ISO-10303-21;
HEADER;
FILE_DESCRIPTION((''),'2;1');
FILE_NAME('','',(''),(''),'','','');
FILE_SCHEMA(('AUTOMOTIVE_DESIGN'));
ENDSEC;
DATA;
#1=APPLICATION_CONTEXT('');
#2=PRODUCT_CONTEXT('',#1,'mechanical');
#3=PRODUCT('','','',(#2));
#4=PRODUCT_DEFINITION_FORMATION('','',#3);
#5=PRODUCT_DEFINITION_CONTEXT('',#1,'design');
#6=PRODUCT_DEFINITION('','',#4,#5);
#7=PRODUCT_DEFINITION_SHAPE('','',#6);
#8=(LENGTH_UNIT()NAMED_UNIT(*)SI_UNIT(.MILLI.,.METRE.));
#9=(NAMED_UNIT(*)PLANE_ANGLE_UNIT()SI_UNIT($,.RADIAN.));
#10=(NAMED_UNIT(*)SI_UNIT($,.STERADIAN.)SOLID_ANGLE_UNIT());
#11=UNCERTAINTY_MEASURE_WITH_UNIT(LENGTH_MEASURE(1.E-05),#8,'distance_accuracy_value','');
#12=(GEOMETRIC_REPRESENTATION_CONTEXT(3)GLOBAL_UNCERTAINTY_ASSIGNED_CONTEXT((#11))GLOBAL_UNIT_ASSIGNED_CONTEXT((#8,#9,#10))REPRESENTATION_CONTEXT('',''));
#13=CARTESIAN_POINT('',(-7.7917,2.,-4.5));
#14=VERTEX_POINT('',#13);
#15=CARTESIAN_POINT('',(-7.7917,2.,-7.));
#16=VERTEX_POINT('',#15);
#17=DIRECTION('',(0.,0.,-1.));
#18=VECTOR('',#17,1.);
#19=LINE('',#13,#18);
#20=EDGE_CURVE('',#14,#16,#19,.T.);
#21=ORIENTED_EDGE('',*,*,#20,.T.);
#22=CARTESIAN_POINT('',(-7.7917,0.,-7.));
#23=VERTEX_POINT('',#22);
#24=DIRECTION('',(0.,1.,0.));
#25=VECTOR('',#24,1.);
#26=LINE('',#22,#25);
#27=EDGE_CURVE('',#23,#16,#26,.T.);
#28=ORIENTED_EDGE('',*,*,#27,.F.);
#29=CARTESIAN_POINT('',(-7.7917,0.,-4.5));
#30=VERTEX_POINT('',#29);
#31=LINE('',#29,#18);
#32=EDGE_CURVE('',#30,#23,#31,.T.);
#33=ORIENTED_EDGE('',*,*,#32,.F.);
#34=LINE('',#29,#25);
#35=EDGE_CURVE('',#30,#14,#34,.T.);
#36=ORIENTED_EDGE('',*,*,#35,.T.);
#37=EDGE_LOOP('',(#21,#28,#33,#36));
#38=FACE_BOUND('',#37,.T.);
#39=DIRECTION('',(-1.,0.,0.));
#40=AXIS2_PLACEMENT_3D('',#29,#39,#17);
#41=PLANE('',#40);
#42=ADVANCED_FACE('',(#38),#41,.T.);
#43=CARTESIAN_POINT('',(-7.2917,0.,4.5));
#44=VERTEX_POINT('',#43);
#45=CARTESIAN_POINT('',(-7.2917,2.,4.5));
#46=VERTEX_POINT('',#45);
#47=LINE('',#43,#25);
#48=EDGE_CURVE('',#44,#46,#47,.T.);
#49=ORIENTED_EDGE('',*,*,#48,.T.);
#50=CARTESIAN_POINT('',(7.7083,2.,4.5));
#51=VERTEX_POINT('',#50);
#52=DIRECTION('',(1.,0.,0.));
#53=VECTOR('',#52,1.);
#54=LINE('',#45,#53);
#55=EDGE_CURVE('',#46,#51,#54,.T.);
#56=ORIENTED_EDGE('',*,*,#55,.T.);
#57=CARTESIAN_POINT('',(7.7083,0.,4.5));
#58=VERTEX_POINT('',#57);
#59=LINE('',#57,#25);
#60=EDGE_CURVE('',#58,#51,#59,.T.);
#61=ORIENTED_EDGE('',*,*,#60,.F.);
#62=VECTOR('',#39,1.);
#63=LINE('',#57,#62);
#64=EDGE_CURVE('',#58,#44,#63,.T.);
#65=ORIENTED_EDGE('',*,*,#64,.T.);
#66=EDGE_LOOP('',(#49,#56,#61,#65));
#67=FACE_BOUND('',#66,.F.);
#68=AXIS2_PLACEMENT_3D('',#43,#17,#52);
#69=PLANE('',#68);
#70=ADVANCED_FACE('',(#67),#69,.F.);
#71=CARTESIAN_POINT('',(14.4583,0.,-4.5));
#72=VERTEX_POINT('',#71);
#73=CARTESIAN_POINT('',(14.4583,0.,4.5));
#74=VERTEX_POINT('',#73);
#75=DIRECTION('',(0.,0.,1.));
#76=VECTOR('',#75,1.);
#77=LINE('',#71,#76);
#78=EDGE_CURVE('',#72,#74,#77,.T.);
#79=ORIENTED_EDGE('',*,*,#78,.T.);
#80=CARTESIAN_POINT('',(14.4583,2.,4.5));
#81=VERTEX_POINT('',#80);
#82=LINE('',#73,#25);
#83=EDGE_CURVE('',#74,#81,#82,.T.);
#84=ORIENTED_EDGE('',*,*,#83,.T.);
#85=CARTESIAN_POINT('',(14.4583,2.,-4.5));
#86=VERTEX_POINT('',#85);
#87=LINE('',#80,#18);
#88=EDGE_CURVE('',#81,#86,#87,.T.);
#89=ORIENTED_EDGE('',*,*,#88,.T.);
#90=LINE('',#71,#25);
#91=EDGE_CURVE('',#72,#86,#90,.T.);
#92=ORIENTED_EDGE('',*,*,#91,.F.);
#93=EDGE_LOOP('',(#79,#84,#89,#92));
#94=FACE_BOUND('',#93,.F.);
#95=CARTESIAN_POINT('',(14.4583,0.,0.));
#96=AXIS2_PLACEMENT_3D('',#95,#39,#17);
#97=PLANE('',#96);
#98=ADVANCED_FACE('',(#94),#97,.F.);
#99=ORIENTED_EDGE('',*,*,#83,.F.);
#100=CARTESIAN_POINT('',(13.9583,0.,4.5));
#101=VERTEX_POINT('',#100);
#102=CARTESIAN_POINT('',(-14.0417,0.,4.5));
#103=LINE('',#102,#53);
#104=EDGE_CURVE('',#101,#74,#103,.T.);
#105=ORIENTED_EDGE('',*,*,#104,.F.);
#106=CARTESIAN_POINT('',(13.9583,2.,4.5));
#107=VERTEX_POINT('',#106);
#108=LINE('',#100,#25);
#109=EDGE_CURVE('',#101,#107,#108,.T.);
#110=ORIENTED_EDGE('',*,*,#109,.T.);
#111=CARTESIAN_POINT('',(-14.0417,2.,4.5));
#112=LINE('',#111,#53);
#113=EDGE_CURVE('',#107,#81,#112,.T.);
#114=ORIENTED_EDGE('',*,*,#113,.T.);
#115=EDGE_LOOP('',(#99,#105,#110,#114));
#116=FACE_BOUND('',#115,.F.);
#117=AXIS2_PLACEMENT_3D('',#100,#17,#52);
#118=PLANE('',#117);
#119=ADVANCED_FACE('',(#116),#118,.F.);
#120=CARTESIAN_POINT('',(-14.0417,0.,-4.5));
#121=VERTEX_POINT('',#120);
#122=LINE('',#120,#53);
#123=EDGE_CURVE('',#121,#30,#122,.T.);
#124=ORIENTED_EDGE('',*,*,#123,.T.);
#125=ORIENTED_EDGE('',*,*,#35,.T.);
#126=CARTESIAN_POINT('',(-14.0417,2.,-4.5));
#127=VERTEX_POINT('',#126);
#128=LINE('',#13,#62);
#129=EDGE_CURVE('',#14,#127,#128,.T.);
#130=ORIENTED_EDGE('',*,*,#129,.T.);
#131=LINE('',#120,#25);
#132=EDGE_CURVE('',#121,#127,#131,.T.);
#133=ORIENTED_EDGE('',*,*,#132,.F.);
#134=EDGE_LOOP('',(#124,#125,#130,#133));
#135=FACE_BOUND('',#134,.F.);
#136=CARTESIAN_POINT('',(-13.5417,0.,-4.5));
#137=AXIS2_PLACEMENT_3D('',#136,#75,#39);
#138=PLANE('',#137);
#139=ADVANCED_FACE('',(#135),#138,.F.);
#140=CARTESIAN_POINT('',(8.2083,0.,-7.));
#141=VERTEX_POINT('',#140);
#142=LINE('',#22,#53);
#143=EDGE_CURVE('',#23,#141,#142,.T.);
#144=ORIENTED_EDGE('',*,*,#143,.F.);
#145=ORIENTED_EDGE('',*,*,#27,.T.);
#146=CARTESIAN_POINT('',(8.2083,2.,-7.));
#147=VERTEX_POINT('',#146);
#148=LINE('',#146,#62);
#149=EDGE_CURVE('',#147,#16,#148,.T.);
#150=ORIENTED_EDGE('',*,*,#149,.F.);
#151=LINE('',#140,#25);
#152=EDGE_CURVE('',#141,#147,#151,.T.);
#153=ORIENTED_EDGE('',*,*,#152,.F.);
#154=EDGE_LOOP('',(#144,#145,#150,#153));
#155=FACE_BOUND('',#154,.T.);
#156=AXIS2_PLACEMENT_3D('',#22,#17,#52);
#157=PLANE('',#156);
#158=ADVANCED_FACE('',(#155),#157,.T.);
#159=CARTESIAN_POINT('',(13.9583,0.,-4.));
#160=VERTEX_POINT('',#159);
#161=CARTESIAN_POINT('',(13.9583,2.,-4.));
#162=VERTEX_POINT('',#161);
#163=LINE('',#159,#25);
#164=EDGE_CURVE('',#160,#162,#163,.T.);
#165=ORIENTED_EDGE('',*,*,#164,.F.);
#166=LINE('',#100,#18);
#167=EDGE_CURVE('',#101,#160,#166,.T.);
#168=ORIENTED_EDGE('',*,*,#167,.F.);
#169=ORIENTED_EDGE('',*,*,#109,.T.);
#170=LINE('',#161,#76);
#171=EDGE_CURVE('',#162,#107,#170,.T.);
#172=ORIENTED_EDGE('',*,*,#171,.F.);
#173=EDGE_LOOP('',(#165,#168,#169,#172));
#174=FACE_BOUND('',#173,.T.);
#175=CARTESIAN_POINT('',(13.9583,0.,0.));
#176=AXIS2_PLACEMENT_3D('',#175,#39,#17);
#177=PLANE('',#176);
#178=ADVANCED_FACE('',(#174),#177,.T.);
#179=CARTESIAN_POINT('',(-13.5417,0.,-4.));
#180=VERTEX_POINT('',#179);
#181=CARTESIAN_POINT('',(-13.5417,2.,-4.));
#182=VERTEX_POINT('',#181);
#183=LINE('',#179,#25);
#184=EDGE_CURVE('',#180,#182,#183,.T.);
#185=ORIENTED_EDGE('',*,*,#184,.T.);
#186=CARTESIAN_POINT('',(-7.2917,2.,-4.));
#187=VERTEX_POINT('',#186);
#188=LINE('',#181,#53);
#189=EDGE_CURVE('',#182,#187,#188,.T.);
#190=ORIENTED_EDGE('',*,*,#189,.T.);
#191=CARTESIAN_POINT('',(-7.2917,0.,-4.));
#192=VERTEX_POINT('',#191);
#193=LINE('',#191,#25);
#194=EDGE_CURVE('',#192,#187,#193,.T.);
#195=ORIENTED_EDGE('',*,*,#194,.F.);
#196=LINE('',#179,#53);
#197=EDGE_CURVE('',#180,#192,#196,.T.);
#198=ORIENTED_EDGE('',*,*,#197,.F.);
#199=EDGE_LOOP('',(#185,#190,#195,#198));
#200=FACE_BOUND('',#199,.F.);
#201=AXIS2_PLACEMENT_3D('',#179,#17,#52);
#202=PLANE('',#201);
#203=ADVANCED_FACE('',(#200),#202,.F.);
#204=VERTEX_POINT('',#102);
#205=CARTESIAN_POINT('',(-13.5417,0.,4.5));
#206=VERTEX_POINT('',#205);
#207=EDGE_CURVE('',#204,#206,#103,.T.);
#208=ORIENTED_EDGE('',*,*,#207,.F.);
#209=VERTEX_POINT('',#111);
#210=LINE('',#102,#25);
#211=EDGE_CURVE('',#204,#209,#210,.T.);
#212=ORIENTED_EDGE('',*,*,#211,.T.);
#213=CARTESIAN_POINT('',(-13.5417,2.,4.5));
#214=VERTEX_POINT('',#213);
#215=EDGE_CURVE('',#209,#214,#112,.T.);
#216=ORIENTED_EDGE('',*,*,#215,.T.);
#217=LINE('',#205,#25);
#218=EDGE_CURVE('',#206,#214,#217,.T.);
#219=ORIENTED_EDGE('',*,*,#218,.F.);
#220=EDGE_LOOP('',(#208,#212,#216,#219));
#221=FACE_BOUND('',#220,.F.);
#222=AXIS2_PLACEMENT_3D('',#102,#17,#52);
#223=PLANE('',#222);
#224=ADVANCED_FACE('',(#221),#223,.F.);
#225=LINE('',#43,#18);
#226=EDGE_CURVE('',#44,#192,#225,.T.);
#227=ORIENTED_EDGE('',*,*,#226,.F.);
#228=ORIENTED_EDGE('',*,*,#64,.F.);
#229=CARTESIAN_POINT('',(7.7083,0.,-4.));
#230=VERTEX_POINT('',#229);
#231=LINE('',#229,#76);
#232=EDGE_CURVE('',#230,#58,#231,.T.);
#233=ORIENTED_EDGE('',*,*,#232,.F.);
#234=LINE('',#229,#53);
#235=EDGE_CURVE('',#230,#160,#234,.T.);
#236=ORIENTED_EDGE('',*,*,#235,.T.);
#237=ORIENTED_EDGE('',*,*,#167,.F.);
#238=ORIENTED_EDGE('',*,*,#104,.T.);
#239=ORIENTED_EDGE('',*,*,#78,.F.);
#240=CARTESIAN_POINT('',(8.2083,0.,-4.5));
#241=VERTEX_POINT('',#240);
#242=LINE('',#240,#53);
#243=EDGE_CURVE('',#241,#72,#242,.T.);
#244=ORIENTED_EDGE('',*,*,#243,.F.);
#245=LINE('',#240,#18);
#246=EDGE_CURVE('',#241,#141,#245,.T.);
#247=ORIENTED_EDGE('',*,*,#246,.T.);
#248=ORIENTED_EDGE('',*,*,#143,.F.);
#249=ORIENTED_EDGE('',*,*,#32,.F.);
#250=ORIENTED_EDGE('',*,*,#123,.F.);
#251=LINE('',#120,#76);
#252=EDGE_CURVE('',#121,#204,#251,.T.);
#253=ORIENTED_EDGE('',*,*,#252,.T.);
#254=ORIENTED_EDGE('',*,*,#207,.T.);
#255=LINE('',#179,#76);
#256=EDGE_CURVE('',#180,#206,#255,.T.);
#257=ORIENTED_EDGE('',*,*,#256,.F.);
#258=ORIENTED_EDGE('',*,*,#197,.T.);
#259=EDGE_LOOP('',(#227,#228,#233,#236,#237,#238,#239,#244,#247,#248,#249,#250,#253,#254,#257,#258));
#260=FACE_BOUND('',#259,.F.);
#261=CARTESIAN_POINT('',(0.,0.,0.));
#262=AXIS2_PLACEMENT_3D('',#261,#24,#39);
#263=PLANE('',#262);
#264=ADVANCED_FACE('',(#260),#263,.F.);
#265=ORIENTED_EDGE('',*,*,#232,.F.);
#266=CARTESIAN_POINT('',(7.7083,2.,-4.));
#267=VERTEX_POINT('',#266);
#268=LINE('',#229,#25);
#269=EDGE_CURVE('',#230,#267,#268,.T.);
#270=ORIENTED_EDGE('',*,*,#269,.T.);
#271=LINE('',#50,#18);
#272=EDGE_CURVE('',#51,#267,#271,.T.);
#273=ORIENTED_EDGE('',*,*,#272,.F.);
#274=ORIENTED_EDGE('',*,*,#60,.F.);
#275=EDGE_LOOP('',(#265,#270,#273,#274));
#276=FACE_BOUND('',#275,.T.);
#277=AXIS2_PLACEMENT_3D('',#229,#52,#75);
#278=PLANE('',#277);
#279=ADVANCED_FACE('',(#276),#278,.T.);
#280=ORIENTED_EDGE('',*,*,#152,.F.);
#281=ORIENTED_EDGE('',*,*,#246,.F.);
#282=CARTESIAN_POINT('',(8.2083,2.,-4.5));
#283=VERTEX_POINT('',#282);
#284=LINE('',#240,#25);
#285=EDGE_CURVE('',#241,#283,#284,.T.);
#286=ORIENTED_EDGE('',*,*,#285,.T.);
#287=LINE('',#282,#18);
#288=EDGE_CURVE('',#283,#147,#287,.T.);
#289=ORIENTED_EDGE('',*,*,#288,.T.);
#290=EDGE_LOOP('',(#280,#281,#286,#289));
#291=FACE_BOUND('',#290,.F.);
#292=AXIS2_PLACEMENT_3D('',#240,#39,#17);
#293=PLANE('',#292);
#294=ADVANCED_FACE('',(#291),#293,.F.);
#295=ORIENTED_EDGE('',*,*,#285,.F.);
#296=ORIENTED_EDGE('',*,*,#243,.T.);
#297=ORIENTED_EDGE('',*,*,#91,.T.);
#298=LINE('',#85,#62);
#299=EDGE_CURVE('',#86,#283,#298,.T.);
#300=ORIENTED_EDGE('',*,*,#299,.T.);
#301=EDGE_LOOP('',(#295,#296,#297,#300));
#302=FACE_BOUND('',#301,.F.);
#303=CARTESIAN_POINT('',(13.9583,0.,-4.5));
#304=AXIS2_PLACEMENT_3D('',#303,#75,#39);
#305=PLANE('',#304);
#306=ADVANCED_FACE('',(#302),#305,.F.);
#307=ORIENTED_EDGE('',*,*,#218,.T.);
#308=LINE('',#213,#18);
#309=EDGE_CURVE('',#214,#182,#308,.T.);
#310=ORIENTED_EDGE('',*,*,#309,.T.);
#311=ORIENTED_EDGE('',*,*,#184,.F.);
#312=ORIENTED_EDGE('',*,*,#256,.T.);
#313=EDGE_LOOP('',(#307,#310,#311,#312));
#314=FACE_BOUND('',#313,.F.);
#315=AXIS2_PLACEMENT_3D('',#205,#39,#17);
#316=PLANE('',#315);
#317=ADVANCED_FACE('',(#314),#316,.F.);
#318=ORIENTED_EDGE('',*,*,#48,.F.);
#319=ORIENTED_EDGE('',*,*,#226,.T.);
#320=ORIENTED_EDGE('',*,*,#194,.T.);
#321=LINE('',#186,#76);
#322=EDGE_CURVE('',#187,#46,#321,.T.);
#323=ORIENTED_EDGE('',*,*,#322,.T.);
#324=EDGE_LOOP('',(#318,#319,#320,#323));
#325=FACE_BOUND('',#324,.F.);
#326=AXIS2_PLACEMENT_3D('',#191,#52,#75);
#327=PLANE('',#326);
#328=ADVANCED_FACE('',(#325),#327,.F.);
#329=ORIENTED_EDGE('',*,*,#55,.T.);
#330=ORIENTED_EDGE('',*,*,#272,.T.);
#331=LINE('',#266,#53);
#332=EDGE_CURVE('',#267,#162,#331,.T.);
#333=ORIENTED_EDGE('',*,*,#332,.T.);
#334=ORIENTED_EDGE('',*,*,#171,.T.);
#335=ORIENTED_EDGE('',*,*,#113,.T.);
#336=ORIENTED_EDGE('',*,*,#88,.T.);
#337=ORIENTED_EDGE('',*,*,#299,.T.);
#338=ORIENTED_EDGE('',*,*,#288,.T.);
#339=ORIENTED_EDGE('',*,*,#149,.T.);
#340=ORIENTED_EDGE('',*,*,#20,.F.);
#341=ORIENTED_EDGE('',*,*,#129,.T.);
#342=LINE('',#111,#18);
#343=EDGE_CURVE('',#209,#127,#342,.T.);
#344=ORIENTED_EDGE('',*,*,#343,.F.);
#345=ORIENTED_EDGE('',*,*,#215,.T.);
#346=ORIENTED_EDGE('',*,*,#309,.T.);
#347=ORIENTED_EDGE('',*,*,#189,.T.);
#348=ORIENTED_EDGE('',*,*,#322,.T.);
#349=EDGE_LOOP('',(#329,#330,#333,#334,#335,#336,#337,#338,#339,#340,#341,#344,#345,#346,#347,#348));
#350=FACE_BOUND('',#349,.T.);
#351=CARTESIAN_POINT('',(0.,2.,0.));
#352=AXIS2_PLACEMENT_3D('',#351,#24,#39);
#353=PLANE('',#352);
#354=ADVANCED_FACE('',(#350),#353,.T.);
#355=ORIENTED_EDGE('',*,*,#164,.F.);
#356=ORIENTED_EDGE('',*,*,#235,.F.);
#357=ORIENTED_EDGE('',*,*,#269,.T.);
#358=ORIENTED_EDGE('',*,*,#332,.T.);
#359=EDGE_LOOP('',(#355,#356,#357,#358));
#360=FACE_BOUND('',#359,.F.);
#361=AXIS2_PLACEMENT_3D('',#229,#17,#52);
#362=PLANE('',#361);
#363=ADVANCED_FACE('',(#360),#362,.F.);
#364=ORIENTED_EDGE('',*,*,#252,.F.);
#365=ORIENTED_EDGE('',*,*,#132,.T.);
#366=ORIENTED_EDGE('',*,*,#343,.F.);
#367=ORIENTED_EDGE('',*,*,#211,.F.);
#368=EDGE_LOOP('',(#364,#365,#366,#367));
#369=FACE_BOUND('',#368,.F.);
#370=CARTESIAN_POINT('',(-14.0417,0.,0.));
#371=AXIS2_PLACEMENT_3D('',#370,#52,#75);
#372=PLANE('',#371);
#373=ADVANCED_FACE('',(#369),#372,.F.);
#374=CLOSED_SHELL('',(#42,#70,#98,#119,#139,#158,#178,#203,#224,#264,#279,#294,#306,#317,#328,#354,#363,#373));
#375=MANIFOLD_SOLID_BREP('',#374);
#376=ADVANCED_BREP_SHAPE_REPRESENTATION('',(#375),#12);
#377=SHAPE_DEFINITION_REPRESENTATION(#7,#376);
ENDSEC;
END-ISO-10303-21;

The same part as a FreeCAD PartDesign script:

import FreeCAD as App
import Part
import Sketcher


def add_polygon(sketch, points):
    """Adds a closed chain of lines whose ends are joined by coincident constraints."""
    first, n = sketch.GeometryCount, len(points)
    for a, b in zip(points, points[1:] + points[:1]):
        sketch.addGeometry(Part.LineSegment(App.Vector(*a, 0), App.Vector(*b, 0)), False)
    for i in range(n):
        sketch.addConstraint(Sketcher.Constraint("Coincident", first + i, 2, first + (i + 1) % n, 1))

doc = App.newDocument("Part")
body = doc.addObject("PartDesign::Body", "Body")

# Sketch on XZ plane
sketch1 = body.newObject("Sketcher::SketchObject", "Sketch")
sketch1.AttachmentSupport = (doc.getObject("XZ_Plane"), [""])
sketch1.MapMode = "FlatFace"
add_polygon(sketch1, [(-14, 4.5), (-13.5, 4.5), (-13.5, -4), (-7.3, -4), (-7.3, 4.5), (7.7, 4.5), (7.7, -4), (14, -4), (14, 4.5), (14.5, 4.5), (14.5, -4.5), (8.2, -4.5), (8.2, -7), (-7.8, -7), (-7.8, -4.5), (-14, -4.5)])  # lines 0-15
sketch1.addConstraint(Sketcher.Constraint("Horizontal", 0))
sketch1.addConstraint(Sketcher.Constraint("Vertical", 1))
sketch1.addConstraint(Sketcher.Constraint("Horizontal", 2))
sketch1.addConstraint(Sketcher.Constraint("Vertical", 3))
sketch1.addConstraint(Sketcher.Constraint("Horizontal", 4))
sketch1.addConstraint(Sketcher.Constraint("Vertical", 5))
sketch1.addConstraint(Sketcher.Constraint("Horizontal", 6))
sketch1.addConstraint(Sketcher.Constraint("Vertical", 7))
sketch1.addConstraint(Sketcher.Constraint("Horizontal", 8))
sketch1.addConstraint(Sketcher.Constraint("Vertical", 9))
sketch1.addConstraint(Sketcher.Constraint("Horizontal", 10))
sketch1.addConstraint(Sketcher.Constraint("Vertical", 11))
sketch1.addConstraint(Sketcher.Constraint("Horizontal", 12))
sketch1.addConstraint(Sketcher.Constraint("Vertical", 13))
sketch1.addConstraint(Sketcher.Constraint("Horizontal", 14))
sketch1.addConstraint(Sketcher.Constraint("Vertical", 15))
sketch1.addConstraint(Sketcher.Constraint("Horizontal", 0, 2, 3, 2))
sketch1.addConstraint(Sketcher.Constraint("Horizontal", 2, 2, 5, 2))
sketch1.addConstraint(Sketcher.Constraint("Horizontal", 4, 2, 7, 2))
sketch1.addConstraint(Sketcher.Constraint("Horizontal", 10, 2, 13, 2))
sketch1.addConstraint(Sketcher.Constraint("Equal", 2, 6))
sketch1.addConstraint(Sketcher.Constraint("Equal", 0, 8))
sketch1.addConstraint(Sketcher.Constraint("Equal", 6, 10))
sketch1.addConstraint(Sketcher.Constraint("Equal", 10, 14))
sketch1.addConstraint(Sketcher.Constraint("DistanceY", 9, 2, 9, 1, 9.0))
sketch1.addConstraint(Sketcher.Constraint("DistanceX", 0, 1, 0, 2, 0.5))
sketch1.addConstraint(Sketcher.Constraint("DistanceY", 11, 2, 11, 1, 2.5))
sketch1.addConstraint(Sketcher.Constraint("DistanceY", -1, 1, 0, 2, 4.5))
sketch1.addConstraint(Sketcher.Constraint("DistanceY", 9, 2, 6, 2, 0.5))
sketch1.addConstraint(Sketcher.Constraint("DistanceX", 4, 1, 4, 2, 15.0))
sketch1.addConstraint(Sketcher.Constraint("DistanceX", 4, 2, 8, 2, 6.75))
sketch1.addConstraint(Sketcher.Constraint("DistanceX", 0, 2, -1, 1, 13.5417))
pad1 = body.newObject("PartDesign::Pad", "Pad")
pad1.Profile = sketch1
pad1.Length = 2
pad1.Reversed = True

doc.recompute()
